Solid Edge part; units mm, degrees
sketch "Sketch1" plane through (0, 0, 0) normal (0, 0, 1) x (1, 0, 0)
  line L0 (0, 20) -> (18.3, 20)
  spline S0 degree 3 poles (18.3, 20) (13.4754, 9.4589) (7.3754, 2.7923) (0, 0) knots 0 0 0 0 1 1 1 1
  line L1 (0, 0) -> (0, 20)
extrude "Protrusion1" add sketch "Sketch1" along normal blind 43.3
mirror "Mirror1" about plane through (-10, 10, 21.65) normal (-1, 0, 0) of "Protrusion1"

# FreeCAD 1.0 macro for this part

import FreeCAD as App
import Part
import Sketcher
from FreeCAD import Vector

doc = App.newDocument("Part")
params = doc.addObject("Spreadsheet::Sheet", "Params")
for row, (alias, value) in enumerate([
    ("pad1_length", "43.3 mm"),
], start=1):
    params.set(f"A{row}", alias)
    params.set(f"B{row}", "=" + value)
    params.setAlias(f"B{row}", alias)

body = doc.addObject("PartDesign::Body", "Body")
body.AllowCompound = True

sketch1 = body.newObject("Sketcher::SketchObject", "Sketch")
sketch1.AttachmentSupport = (doc.getObject("XY_Plane"), [""])
sketch1.MapMode = "FlatFace"
sketch1.addGeometry(Part.LineSegment(Vector(18.3, 20, 0), Vector(0, 20, 0)), False)
sketch1.addGeometry(Part.LineSegment(Vector(0, 20, 0), Vector(0, 0, 0)), False)
sketch1.addGeometry(Part.BSplineCurve([Vector(18.3, 20, 0), Vector(13.4754, 9.4589, 0), Vector(7.3754, 2.7923, 0), Vector(0, 0, 0)], [4, 4], [0, 1], False, 3, [1, 1, 1, 1], False), False)
sketch1.addConstraint(Sketcher.Constraint("Block", 2))
sketch1.addConstraint(Sketcher.Constraint("Coincident", 0, 2, 1, 1))
sketch1.addConstraint(Sketcher.Constraint("Coincident", 1, 2, 2, 2))
sketch1.addConstraint(Sketcher.Constraint("Coincident", 2, 1, 0, 1))
sketch1.addConstraint(Sketcher.Constraint("Horizontal", 0))
sketch1.addConstraint(Sketcher.Constraint("Vertical", 1))
pad1 = body.newObject("PartDesign::Pad", "Pad")
pad1.Profile = sketch1
pad1.setExpression("Length", "Params.pad1_length")
doc.recompute()

datumplane = body.newObject("PartDesign::Plane", "DatumPlane")
datumplane.AttachmentSupport = (doc.getObject("YZ_Plane"), [""])
datumplane.MapMode = "FlatFace"
datumplane.AttachmentOffset = App.Placement(Vector(0, 0, -10), App.Rotation())
mirrored = body.newObject("PartDesign::Mirrored", "Mirrored")
mirrored.Originals = [pad1]
mirrored.MirrorPlane = (datumplane, [""])
body.Tip = mirrored

doc.recompute()
